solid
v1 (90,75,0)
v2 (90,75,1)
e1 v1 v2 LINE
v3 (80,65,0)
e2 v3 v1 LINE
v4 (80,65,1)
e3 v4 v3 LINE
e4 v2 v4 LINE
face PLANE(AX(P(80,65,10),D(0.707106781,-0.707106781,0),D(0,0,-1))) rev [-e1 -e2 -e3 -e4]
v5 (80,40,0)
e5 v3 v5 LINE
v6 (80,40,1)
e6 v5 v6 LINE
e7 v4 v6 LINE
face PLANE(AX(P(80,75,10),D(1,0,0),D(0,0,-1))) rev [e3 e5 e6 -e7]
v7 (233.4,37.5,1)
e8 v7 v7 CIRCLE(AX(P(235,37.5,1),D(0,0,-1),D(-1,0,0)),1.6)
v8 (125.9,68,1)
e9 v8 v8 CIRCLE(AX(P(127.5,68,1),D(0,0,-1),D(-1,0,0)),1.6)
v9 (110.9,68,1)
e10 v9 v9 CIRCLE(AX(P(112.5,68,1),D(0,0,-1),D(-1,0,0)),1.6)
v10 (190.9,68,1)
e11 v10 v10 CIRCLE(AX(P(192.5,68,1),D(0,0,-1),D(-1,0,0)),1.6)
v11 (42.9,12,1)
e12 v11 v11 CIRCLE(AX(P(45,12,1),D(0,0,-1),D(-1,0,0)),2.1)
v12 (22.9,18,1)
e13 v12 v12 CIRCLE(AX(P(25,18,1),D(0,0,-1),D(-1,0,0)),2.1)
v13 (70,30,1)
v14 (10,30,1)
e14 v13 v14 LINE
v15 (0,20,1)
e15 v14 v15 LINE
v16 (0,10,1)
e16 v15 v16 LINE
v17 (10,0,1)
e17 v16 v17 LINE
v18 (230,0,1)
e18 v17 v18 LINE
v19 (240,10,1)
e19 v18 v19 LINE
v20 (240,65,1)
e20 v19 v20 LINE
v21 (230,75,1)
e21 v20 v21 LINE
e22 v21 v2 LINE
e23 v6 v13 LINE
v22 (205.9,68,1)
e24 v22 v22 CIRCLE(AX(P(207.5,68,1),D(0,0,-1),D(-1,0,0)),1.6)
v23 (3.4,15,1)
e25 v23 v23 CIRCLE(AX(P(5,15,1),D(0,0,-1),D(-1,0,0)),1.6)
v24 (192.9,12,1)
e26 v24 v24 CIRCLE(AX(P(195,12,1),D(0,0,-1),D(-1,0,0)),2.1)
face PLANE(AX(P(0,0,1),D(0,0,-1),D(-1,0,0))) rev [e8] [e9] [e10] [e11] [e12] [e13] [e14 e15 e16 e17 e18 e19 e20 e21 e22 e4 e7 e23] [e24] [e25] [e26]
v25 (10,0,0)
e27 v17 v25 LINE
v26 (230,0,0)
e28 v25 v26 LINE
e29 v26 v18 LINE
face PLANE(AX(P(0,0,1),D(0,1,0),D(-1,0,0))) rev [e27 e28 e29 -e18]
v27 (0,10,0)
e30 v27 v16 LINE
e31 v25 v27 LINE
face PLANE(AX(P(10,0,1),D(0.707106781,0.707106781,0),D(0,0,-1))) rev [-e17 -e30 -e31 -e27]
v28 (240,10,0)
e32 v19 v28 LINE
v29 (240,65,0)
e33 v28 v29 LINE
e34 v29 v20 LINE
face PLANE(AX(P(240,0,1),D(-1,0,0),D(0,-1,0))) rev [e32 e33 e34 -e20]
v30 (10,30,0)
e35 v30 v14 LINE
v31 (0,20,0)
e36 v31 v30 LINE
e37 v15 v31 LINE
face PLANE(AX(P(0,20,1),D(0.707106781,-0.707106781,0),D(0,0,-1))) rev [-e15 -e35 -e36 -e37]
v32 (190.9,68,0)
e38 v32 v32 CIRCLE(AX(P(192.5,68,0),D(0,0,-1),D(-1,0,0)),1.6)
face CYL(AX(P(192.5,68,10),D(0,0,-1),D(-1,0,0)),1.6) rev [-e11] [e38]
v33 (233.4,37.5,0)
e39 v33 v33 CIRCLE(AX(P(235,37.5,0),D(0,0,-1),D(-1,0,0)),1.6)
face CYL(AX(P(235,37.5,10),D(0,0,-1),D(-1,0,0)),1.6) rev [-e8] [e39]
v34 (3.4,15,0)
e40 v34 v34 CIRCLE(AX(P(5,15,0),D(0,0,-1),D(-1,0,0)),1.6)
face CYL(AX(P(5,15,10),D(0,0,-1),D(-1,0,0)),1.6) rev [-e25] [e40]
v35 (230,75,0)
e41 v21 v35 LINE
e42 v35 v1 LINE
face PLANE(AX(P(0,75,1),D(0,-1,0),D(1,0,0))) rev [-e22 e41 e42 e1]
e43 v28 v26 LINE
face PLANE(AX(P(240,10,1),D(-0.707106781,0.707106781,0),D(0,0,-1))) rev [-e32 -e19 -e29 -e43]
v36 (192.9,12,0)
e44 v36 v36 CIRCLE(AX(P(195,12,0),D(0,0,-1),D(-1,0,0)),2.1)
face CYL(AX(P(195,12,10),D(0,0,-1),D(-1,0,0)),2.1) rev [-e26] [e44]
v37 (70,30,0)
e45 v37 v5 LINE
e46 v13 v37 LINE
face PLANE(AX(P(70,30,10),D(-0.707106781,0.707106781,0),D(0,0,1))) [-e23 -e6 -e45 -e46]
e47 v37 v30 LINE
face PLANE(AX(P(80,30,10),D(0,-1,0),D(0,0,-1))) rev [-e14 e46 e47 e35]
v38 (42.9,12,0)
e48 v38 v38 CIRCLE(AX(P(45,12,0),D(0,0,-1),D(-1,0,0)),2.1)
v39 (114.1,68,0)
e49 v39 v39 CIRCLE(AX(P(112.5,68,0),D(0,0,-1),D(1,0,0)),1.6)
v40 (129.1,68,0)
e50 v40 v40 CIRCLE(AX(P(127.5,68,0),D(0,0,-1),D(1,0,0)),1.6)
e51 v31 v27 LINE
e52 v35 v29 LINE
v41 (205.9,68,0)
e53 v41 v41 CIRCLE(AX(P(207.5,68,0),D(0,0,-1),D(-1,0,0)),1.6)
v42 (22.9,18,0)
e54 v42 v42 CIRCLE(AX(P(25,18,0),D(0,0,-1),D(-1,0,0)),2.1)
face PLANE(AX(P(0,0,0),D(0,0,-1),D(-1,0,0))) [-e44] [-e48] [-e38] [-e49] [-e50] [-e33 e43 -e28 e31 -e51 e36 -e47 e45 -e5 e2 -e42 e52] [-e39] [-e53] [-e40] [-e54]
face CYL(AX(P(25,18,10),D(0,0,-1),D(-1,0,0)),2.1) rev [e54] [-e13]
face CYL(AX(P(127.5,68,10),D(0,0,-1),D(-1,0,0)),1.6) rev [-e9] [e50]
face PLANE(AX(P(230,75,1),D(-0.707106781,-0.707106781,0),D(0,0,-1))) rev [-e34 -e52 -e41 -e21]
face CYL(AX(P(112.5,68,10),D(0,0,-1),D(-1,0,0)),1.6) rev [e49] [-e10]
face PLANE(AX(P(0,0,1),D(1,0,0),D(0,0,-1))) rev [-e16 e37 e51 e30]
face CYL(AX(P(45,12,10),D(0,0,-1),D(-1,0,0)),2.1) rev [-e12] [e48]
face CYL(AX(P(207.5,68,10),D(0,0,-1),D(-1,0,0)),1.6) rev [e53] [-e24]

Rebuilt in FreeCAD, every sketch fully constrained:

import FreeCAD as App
import Part
import Sketcher

V = App.Vector


def edges_at(feature, points):
    """Names of the edges that pass closest to the given points."""
    edges = feature.Shape.Edges
    near = lambda p: min(range(len(edges)), key=lambda i: edges[i].distToShape(Part.Vertex(*p))[0])
    return sorted({f"Edge{near(p) + 1}" for p in points})


def add_polygon(sketch, points):
    """Adds a closed chain of lines whose ends are joined by coincident constraints."""
    first, n = sketch.GeometryCount, len(points)
    for a, b in zip(points, points[1:] + points[:1]):
        sketch.addGeometry(Part.LineSegment(App.Vector(*a, 0), App.Vector(*b, 0)), False)
    for i in range(n):
        sketch.addConstraint(Sketcher.Constraint("Coincident", first + i, 2, first + (i + 1) % n, 1))

doc = App.newDocument("Part")
body = doc.addObject("PartDesign::Body", "Body")

# Sketch on XY plane
sketch1 = doc.addObject("Sketcher::SketchObject", "Sketch")
body.addObject(sketch1)
sketch1.AttachmentSupport = (doc.XY_Plane, [""])
sketch1.MapMode = "FlatFace"
add_polygon(sketch1, [(0, 75), (0, 0), (240, 0), (240, 75)])  # lines 0-3
sketch1.addConstraint([
    Sketcher.Constraint("Vertical", 0),
    Sketcher.Constraint("Horizontal", 1),
    Sketcher.Constraint("Vertical", 2),
    Sketcher.Constraint("Horizontal", 3),
    Sketcher.Constraint("Coincident", 0, 2, -1, 1),
    Sketcher.Constraint("DistanceX", 1, 1, 1, 2, 240.0),
    Sketcher.Constraint("DistanceY", 0, 2, 0, 1, 75.0),
])
pad1 = doc.addObject("PartDesign::Pad", "Pad")
body.addObject(pad1)
pad1.Profile = sketch1
pad1.Length = 1

# Sketch on XY plane
sketch2 = doc.addObject("Sketcher::SketchObject", "Sketch001")
body.addObject(sketch2)
sketch2.AttachmentSupport = (doc.XY_Plane, [""])
sketch2.MapMode = "FlatFace"
add_polygon(sketch2, [(80, 75), (80, 30), (0, 30), (0, 75)])  # lines 0-3
sketch2.addConstraint([
    Sketcher.Constraint("Vertical", 0),
    Sketcher.Constraint("Horizontal", 1),
    Sketcher.Constraint("Vertical", 2),
    Sketcher.Constraint("Horizontal", 3),
    Sketcher.Constraint("PointOnObject", 1, 2, -2),
    Sketcher.Constraint("DistanceX", 1, 2, 1, 1, 80.0),
    Sketcher.Constraint("DistanceY", 0, 2, 0, 1, 45.0),
    Sketcher.Constraint("DistanceY", -1, 1, 0, 2, 30.0),
])
pocket1 = doc.addObject("PartDesign::Pocket", "Pocket")
body.addObject(pocket1)
pocket1.Profile = sketch2
pocket1.Length = 10
pocket1.Reversed = True
doc.recompute()

chamfer = doc.addObject("PartDesign::Chamfer", "Chamfer")
body.addObject(chamfer)
chamfer.Base = (pocket1, edges_at(pocket1, [
    (80, 75, 0.5),
    (0, 30, 0.5),
    (80, 30, 0.5),
    (240, 75, 0.5),
    (240, 0, 0.5),
    (0, 0, 0.5),
]))
chamfer.Size = 10

# Sketch on XY plane
sketch3 = doc.addObject("Sketcher::SketchObject", "Sketch002")
body.addObject(sketch3)
sketch3.AttachmentSupport = (doc.XY_Plane, [""])
sketch3.MapMode = "FlatFace"
sketch3.addGeometry([
    Part.Circle(V(5, 15, 0), V(0, 0, 1), 1.6),  # 0
    Part.Circle(V(195, 12, 0), V(0, 0, 1), 2.1),  # 1
    Part.Circle(V(45, 12, 0), V(0, 0, 1), 2.1),  # 2
    Part.Circle(V(235, 37.5, 0), V(0, 0, 1), 1.6),  # 3
    Part.Circle(V(207.5, 68, 0), V(0, 0, 1), 1.6),  # 4
    Part.Circle(V(192.5, 68, 0), V(0, 0, 1), 1.6),  # 5
    Part.Circle(V(127.5, 68, 0), V(0, 0, 1), 1.6),  # 6
    Part.Circle(V(112.5, 68, 0), V(0, 0, 1), 1.6),  # 7
    Part.Circle(V(25, 18, 0), V(0, 0, 1), 2.1),  # 8
], False)
sketch3.addConstraint([
    Sketcher.Constraint("Equal", 1, 2),
    Sketcher.Constraint("Equal", 0, 3),
    Sketcher.Constraint("Equal", 3, 4),
    Sketcher.Constraint("Equal", 4, 5),
    Sketcher.Constraint("Equal", 5, 6),
    Sketcher.Constraint("Equal", 6, 7),
    Sketcher.Constraint("Equal", 2, 8),
    Sketcher.Constraint("Horizontal", 1, 3, 2, 3),
    Sketcher.Constraint("Horizontal", 4, 3, 5, 3),
    Sketcher.Constraint("Horizontal", 5, 3, 6, 3),
    Sketcher.Constraint("Horizontal", 6, 3, 7, 3),
    Sketcher.Constraint("Diameter", 0, 3.2),
    Sketcher.Constraint("Diameter", 1, 4.2),
    Sketcher.Constraint("DistanceX", -1, 1, 0, 3, 5.0),
    Sketcher.Constraint("DistanceY", -1, 1, 0, 3, 15.0),
    Sketcher.Constraint("DistanceX", -1, 1, 1, 3, 195.0),
    Sketcher.Constraint("DistanceY", -1, 1, 1, 3, 12.0),
    Sketcher.Constraint("DistanceX", -1, 1, 2, 3, 45.0),
    Sketcher.Constraint("DistanceX", -1, 1, 3, 3, 235.0),
    Sketcher.Constraint("DistanceY", -1, 1, 4, 3, 68.0),
    Sketcher.Constraint("DistanceX", -1, 1, 8, 3, 25.0),
    Sketcher.Constraint("DistanceY", -1, 1, 8, 3, 18.0),
    Sketcher.Constraint("DistanceX", 5, 3, 4, 3, 15.0),
    Sketcher.Constraint("DistanceX", 6, 3, 5, 3, 65.0),
    Sketcher.Constraint("DistanceX", 7, 3, 6, 3, 15.0),
    Sketcher.Constraint("DistanceY", -1, 1, 3, 3, 37.5),
    Sketcher.Constraint("DistanceX", -1, 1, 4, 3, 207.5),
])
pocket2 = doc.addObject("PartDesign::Pocket", "Pocket001")
body.addObject(pocket2)
pocket2.Profile = sketch3
pocket2.Length = 10
pocket2.Reversed = True

doc.recompute()
